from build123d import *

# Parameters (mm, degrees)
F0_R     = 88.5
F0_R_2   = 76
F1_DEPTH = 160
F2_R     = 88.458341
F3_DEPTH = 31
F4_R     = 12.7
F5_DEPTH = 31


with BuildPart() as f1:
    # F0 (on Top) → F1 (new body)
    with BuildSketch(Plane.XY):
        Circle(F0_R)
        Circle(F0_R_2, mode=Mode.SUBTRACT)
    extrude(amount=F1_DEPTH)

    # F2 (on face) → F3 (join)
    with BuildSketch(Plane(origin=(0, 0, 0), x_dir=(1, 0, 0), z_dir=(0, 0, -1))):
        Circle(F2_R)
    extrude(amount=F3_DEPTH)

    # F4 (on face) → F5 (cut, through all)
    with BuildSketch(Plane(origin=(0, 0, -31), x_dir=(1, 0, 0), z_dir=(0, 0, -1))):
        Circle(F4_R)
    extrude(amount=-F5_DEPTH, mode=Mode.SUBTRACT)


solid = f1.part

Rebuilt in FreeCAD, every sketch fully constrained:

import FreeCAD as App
import Part
import Sketcher

doc = App.newDocument("Part")
body = doc.addObject("PartDesign::Body", "Body")

sketch1 = doc.addObject("Sketcher::SketchObject", "Sketch")
body.addObject(sketch1)
sketch1.AttachmentSupport = (doc.XY_Plane, [""])
sketch1.MapMode = "FlatFace"
sketch1.addGeometry(Part.Circle(App.Vector(0, 0, 0), App.Vector(0, 0, 1), 88), False)
sketch1.addGeometry(Part.Circle(App.Vector(0, 0, 0), App.Vector(0, 0, 1), 76), False)
sketch1.addConstraint(Sketcher.Constraint("Coincident", 0, 3, -1, 1))
sketch1.addConstraint(Sketcher.Constraint("Coincident", 1, 3, -1, 1))
sketch1.addConstraint(Sketcher.Constraint("Diameter", 0, 177.0))
sketch1.addConstraint(Sketcher.Constraint("Diameter", 1, 152.0))
pad1 = doc.addObject("PartDesign::Pad", "Pad")
body.addObject(pad1)
pad1.Profile = sketch1
pad1.Length = 160

sketch2 = doc.addObject("Sketcher::SketchObject", "Sketch001")
body.addObject(sketch2)
sketch2.AttachmentSupport = (doc.XY_Plane, [""])
sketch2.MapMode = "FlatFace"
sketch2.addGeometry(Part.Circle(App.Vector(0, 0, 0), App.Vector(0, 0, 1), 88), False)
sketch2.addConstraint(Sketcher.Constraint("Coincident", 0, 3, -1, 1))
sketch2.addConstraint(Sketcher.Constraint("Diameter", 0, 176.916682))
pad2 = doc.addObject("PartDesign::Pad", "Pad001")
body.addObject(pad2)
pad2.Profile = sketch2
pad2.Length = 31
pad2.Reversed = True

sketch3 = doc.addObject("Sketcher::SketchObject", "Sketch002")
body.addObject(sketch3)
sketch3.AttachmentSupport = (doc.XY_Plane, [""])
sketch3.MapMode = "FlatFace"
sketch3.AttachmentOffset = App.Placement(App.Vector(0, 0, -31), App.Rotation())
sketch3.addGeometry(Part.Circle(App.Vector(0, 0, 0), App.Vector(0, 0, 1), 13), False)
sketch3.addConstraint(Sketcher.Constraint("Coincident", 0, 3, -1, 1))
sketch3.addConstraint(Sketcher.Constraint("Diameter", 0, 25.4))
pocket1 = doc.addObject("PartDesign::Pocket", "Pocket")
body.addObject(pocket1)
pocket1.Profile = sketch3
pocket1.Type = "ThroughAll"
pocket1.Reversed = True

doc.recompute()
